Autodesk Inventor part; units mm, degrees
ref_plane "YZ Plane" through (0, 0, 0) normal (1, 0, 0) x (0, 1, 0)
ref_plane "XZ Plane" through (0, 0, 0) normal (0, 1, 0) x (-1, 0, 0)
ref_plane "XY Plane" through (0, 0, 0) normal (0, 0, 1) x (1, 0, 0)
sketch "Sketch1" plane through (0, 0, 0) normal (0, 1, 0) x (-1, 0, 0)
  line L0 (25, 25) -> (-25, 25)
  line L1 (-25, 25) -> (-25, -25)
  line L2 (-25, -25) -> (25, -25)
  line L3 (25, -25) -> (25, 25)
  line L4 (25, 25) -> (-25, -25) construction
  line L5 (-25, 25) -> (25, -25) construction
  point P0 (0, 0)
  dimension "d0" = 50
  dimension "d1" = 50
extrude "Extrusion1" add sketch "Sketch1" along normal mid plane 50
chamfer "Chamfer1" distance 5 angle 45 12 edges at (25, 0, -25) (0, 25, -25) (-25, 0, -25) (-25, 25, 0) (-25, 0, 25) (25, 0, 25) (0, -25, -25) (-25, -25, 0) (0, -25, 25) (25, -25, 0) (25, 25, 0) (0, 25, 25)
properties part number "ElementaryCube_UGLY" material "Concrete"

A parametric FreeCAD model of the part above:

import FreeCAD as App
import Part
import Sketcher
from FreeCAD import Vector


def add_polygon(sketch, points):
    """Adds a closed chain of lines whose ends are joined by coincident constraints."""
    first, n = sketch.GeometryCount, len(points)
    for a, b in zip(points, points[1:] + points[:1]):
        sketch.addGeometry(Part.LineSegment(App.Vector(*a, 0), App.Vector(*b, 0)), False)
    for i in range(n):
        sketch.addConstraint(Sketcher.Constraint("Coincident", first + i, 2, first + (i + 1) % n, 1))

doc = App.newDocument("Part")
body = doc.addObject("PartDesign::Body", "Body")

sketch1 = body.newObject("Sketcher::SketchObject", "Sketch")
sketch1.AttachmentSupport = (doc.getObject("XZ_Plane"), [""])
sketch1.MapMode = "FlatFace"
add_polygon(sketch1, [(-25, -25), (-25, 25), (25, 25), (25, -25)])
sketch1.addConstraint(Sketcher.Constraint("Vertical", 0))
sketch1.addConstraint(Sketcher.Constraint("Horizontal", 1))
sketch1.addConstraint(Sketcher.Constraint("Vertical", 2))
sketch1.addConstraint(Sketcher.Constraint("Horizontal", 3))
sketch1.addConstraint(Sketcher.Constraint("Symmetric", 0, 2, 2, 2, -1, 1))
sketch1.addConstraint(Sketcher.Constraint("Equal", 3, 0))
sketch1.addConstraint(Sketcher.Constraint("DistanceX", 1, 1, 1, 2, 50.0))
pad1 = body.newObject("PartDesign::Pad", "Pad")
pad1.Profile = sketch1
pad1.Length = 50
pad1.Midplane = True
doc.recompute()

chamfer = body.newObject("PartDesign::Chamfer", "Chamfer")
chamfer.Base = (pad1, ["Edge1"])
chamfer.UseAllEdges = True
chamfer.Size = 5

doc.recompute()
